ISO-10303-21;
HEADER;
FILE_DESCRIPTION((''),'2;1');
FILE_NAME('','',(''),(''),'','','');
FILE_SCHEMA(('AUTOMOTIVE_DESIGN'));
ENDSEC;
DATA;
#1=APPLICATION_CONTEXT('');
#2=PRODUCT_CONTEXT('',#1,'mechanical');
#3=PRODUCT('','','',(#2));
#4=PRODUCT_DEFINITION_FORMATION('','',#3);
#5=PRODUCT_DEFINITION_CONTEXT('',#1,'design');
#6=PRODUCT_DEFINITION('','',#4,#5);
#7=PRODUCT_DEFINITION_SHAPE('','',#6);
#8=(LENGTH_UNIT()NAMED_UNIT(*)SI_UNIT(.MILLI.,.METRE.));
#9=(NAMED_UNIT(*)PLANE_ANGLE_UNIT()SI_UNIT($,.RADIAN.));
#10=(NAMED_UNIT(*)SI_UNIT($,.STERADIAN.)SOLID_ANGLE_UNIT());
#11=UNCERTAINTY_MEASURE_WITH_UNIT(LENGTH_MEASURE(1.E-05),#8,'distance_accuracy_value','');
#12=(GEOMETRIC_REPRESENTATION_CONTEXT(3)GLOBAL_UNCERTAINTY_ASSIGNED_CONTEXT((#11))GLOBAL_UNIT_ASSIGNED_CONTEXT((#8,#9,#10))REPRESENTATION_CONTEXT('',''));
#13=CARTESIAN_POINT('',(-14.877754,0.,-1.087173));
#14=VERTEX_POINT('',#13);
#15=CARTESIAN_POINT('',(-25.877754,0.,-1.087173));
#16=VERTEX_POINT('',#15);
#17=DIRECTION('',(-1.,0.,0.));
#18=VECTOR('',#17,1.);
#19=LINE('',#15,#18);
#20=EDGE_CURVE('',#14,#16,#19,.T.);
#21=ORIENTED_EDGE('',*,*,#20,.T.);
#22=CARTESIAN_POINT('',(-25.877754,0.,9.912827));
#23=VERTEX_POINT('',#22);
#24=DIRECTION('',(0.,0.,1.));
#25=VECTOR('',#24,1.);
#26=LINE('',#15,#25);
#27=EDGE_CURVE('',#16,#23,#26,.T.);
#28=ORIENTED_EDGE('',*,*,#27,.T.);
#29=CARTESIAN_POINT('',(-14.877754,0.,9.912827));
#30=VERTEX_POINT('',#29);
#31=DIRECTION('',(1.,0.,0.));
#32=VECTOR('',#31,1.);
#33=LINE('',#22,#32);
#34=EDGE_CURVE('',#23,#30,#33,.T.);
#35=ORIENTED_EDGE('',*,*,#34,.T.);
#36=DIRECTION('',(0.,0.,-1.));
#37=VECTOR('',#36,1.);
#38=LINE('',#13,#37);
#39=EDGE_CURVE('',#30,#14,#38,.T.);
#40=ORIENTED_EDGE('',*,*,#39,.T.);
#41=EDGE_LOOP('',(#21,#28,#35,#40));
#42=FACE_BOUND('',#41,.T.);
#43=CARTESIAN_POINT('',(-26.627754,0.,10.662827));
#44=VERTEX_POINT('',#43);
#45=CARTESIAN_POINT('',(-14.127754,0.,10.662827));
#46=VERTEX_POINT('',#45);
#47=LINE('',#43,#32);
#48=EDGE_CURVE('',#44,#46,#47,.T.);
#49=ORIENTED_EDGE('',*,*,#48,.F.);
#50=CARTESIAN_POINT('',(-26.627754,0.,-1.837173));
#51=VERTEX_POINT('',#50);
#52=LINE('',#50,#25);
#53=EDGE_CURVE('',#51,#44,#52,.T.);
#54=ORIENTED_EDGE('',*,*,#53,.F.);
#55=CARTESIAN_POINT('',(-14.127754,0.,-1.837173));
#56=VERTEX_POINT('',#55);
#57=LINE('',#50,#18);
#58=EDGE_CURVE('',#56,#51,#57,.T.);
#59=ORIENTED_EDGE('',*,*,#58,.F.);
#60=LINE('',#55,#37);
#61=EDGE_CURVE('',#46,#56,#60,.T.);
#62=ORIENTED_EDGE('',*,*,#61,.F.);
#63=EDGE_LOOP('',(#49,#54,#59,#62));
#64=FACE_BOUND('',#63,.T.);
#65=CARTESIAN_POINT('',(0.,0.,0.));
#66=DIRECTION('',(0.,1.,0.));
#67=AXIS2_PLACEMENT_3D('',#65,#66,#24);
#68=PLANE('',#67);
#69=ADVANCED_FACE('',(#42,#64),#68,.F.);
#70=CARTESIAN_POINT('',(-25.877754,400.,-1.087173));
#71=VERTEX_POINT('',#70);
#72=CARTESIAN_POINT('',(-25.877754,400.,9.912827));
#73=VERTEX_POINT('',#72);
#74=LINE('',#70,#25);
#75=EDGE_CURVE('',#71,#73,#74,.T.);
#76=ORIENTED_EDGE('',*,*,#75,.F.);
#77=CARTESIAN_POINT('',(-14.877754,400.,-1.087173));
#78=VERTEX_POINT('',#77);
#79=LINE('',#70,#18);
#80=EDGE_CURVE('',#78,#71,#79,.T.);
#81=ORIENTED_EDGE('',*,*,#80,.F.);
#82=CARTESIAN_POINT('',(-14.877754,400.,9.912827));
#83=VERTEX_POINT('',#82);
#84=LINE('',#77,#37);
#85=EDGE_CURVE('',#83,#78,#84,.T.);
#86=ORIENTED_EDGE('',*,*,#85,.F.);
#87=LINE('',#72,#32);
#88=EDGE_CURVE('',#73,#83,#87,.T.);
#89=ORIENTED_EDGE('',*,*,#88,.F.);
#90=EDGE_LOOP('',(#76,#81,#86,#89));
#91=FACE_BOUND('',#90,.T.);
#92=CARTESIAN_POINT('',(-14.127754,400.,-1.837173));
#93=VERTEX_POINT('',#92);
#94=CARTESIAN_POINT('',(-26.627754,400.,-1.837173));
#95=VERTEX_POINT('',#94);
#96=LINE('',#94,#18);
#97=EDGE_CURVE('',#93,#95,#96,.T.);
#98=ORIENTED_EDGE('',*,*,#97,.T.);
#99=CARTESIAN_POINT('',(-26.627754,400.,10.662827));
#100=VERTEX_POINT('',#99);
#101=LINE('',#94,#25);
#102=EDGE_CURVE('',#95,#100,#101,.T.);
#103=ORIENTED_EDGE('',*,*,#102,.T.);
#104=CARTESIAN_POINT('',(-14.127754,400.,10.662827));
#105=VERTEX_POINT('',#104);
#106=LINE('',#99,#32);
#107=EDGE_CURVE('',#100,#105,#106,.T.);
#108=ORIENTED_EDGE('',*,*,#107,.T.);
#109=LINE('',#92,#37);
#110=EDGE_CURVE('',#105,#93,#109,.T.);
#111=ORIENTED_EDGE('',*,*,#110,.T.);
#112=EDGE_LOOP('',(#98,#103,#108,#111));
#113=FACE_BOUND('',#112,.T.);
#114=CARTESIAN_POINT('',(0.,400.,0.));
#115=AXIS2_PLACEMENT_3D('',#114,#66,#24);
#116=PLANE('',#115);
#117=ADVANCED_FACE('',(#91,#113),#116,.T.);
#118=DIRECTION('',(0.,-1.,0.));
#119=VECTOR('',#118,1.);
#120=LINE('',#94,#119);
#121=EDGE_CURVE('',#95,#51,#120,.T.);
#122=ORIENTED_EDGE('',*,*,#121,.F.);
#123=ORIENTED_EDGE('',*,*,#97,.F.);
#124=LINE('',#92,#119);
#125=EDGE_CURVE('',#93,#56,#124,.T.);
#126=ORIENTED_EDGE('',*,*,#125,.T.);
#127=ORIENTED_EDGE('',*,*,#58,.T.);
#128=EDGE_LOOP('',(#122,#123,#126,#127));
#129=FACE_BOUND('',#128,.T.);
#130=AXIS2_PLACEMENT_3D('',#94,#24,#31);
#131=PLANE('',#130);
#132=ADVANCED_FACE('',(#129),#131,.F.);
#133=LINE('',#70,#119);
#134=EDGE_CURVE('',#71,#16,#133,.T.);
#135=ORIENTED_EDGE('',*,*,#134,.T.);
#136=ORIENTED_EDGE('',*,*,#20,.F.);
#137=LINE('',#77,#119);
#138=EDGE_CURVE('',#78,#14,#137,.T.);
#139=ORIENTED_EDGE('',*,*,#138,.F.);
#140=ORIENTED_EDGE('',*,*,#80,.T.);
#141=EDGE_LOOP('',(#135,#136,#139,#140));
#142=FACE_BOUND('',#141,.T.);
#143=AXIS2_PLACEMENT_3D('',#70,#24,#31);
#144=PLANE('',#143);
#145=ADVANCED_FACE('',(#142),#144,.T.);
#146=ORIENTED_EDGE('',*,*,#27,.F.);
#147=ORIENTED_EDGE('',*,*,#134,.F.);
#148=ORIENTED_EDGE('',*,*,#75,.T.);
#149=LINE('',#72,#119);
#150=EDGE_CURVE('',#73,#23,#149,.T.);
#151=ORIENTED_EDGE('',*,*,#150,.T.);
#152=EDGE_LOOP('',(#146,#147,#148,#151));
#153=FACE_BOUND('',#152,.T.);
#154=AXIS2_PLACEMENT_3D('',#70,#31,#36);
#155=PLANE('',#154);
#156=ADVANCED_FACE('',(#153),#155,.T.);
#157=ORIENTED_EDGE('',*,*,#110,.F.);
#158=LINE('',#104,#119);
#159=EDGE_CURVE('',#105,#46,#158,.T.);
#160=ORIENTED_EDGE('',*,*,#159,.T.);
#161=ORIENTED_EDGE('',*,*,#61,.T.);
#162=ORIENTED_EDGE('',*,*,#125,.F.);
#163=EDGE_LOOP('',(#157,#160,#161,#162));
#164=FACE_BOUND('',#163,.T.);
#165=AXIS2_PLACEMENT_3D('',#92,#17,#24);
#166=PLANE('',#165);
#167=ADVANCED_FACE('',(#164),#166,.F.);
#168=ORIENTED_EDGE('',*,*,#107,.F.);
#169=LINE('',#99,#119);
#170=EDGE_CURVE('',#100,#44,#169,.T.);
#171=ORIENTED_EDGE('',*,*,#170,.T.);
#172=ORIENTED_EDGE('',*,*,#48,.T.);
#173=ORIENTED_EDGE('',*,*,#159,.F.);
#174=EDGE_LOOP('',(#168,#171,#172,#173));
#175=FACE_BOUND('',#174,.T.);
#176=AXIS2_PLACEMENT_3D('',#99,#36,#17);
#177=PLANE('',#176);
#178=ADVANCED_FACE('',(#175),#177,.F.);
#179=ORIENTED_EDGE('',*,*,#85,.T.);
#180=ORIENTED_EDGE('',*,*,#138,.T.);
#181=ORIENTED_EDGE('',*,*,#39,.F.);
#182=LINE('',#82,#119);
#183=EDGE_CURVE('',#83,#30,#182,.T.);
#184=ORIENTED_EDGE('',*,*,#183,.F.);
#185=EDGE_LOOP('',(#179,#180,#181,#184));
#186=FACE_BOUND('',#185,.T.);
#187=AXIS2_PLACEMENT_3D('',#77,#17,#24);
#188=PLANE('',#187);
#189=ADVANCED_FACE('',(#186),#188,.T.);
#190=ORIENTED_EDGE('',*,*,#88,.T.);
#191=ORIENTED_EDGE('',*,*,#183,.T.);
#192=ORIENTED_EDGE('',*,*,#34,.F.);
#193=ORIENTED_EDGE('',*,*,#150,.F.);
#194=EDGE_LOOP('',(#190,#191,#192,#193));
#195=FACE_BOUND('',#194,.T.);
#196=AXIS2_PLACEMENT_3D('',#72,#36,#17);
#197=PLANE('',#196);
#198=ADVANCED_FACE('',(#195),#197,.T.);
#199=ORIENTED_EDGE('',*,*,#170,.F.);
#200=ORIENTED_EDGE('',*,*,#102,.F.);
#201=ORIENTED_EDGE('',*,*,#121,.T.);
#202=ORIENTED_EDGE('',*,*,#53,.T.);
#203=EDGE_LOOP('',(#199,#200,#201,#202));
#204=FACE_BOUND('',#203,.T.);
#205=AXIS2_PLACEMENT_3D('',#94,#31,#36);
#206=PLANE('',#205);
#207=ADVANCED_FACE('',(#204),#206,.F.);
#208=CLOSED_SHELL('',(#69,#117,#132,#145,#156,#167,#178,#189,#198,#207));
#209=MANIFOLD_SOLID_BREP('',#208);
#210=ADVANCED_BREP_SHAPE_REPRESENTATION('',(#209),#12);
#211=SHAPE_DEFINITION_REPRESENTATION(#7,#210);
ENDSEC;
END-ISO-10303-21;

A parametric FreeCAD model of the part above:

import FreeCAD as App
import Part
import Sketcher

V = App.Vector

doc = App.newDocument("Part")
body = doc.addObject("PartDesign::Body", "Body")

sketch1 = body.newObject("Sketcher::SketchObject", "Sketch")
sketch1.AttachmentSupport = (doc.getObject("XZ_Plane"), [""])
sketch1.MapMode = "FlatFace"
sketch1.addGeometry([
    Part.LineSegment(V(-27, -2, 0), V(-27, 11, 0)),
    Part.LineSegment(V(-27, 11, 0), V(-14, 11, 0)),
    Part.LineSegment(V(-14, 11, 0), V(-14, -2, 0)),
    Part.LineSegment(V(-14, -2, 0), V(-27, -2, 0)),
    Part.LineSegment(V(-15, 10, 0), V(-26, 10, 0)),
    Part.LineSegment(V(-26, 10, 0), V(-26, -1, 0)),
    Part.LineSegment(V(-26, -1, 0), V(-15, -1, 0)),
    Part.LineSegment(V(-15, -1, 0), V(-15, 10, 0)),
], False)
sketch1.addConstraint([
    Sketcher.Constraint("Coincident", 0, 2, 1, 1),
    Sketcher.Constraint("Coincident", 1, 2, 2, 1),
    Sketcher.Constraint("Coincident", 2, 2, 3, 1),
    Sketcher.Constraint("Coincident", 3, 2, 0, 1),
    Sketcher.Constraint("Coincident", 4, 2, 5, 1),
    Sketcher.Constraint("Coincident", 5, 2, 6, 1),
    Sketcher.Constraint("Coincident", 6, 2, 7, 1),
    Sketcher.Constraint("Coincident", 7, 2, 4, 1),
    Sketcher.Constraint("Vertical", 0),
    Sketcher.Constraint("Horizontal", 1),
    Sketcher.Constraint("Vertical", 2),
    Sketcher.Constraint("Horizontal", 3),
    Sketcher.Constraint("Horizontal", 4),
    Sketcher.Constraint("Vertical", 5),
    Sketcher.Constraint("Horizontal", 6),
    Sketcher.Constraint("Vertical", 7),
    Sketcher.Constraint("Equal", 3, 0),
    Sketcher.Constraint("Equal", 6, 5),
    Sketcher.Constraint("DistanceX", 4, 2, 4, 1, 11.0),
    Sketcher.Constraint("DistanceX", 1, 1, 1, 2, 12.5),
    Sketcher.Constraint("DistanceX", 0, 2, 4, 2, 0.75),
    Sketcher.Constraint("DistanceY", 4, 2, 0, 2, 0.75),
    Sketcher.Constraint("DistanceX", 0, 2, -1, 1, 26.627754),
    Sketcher.Constraint("DistanceY", -1, 1, 0, 2, 10.662827),
])
pad1 = body.newObject("PartDesign::Pad", "Pad")
pad1.Profile = sketch1
pad1.Length = 400
pad1.Reversed = True

doc.recompute()
